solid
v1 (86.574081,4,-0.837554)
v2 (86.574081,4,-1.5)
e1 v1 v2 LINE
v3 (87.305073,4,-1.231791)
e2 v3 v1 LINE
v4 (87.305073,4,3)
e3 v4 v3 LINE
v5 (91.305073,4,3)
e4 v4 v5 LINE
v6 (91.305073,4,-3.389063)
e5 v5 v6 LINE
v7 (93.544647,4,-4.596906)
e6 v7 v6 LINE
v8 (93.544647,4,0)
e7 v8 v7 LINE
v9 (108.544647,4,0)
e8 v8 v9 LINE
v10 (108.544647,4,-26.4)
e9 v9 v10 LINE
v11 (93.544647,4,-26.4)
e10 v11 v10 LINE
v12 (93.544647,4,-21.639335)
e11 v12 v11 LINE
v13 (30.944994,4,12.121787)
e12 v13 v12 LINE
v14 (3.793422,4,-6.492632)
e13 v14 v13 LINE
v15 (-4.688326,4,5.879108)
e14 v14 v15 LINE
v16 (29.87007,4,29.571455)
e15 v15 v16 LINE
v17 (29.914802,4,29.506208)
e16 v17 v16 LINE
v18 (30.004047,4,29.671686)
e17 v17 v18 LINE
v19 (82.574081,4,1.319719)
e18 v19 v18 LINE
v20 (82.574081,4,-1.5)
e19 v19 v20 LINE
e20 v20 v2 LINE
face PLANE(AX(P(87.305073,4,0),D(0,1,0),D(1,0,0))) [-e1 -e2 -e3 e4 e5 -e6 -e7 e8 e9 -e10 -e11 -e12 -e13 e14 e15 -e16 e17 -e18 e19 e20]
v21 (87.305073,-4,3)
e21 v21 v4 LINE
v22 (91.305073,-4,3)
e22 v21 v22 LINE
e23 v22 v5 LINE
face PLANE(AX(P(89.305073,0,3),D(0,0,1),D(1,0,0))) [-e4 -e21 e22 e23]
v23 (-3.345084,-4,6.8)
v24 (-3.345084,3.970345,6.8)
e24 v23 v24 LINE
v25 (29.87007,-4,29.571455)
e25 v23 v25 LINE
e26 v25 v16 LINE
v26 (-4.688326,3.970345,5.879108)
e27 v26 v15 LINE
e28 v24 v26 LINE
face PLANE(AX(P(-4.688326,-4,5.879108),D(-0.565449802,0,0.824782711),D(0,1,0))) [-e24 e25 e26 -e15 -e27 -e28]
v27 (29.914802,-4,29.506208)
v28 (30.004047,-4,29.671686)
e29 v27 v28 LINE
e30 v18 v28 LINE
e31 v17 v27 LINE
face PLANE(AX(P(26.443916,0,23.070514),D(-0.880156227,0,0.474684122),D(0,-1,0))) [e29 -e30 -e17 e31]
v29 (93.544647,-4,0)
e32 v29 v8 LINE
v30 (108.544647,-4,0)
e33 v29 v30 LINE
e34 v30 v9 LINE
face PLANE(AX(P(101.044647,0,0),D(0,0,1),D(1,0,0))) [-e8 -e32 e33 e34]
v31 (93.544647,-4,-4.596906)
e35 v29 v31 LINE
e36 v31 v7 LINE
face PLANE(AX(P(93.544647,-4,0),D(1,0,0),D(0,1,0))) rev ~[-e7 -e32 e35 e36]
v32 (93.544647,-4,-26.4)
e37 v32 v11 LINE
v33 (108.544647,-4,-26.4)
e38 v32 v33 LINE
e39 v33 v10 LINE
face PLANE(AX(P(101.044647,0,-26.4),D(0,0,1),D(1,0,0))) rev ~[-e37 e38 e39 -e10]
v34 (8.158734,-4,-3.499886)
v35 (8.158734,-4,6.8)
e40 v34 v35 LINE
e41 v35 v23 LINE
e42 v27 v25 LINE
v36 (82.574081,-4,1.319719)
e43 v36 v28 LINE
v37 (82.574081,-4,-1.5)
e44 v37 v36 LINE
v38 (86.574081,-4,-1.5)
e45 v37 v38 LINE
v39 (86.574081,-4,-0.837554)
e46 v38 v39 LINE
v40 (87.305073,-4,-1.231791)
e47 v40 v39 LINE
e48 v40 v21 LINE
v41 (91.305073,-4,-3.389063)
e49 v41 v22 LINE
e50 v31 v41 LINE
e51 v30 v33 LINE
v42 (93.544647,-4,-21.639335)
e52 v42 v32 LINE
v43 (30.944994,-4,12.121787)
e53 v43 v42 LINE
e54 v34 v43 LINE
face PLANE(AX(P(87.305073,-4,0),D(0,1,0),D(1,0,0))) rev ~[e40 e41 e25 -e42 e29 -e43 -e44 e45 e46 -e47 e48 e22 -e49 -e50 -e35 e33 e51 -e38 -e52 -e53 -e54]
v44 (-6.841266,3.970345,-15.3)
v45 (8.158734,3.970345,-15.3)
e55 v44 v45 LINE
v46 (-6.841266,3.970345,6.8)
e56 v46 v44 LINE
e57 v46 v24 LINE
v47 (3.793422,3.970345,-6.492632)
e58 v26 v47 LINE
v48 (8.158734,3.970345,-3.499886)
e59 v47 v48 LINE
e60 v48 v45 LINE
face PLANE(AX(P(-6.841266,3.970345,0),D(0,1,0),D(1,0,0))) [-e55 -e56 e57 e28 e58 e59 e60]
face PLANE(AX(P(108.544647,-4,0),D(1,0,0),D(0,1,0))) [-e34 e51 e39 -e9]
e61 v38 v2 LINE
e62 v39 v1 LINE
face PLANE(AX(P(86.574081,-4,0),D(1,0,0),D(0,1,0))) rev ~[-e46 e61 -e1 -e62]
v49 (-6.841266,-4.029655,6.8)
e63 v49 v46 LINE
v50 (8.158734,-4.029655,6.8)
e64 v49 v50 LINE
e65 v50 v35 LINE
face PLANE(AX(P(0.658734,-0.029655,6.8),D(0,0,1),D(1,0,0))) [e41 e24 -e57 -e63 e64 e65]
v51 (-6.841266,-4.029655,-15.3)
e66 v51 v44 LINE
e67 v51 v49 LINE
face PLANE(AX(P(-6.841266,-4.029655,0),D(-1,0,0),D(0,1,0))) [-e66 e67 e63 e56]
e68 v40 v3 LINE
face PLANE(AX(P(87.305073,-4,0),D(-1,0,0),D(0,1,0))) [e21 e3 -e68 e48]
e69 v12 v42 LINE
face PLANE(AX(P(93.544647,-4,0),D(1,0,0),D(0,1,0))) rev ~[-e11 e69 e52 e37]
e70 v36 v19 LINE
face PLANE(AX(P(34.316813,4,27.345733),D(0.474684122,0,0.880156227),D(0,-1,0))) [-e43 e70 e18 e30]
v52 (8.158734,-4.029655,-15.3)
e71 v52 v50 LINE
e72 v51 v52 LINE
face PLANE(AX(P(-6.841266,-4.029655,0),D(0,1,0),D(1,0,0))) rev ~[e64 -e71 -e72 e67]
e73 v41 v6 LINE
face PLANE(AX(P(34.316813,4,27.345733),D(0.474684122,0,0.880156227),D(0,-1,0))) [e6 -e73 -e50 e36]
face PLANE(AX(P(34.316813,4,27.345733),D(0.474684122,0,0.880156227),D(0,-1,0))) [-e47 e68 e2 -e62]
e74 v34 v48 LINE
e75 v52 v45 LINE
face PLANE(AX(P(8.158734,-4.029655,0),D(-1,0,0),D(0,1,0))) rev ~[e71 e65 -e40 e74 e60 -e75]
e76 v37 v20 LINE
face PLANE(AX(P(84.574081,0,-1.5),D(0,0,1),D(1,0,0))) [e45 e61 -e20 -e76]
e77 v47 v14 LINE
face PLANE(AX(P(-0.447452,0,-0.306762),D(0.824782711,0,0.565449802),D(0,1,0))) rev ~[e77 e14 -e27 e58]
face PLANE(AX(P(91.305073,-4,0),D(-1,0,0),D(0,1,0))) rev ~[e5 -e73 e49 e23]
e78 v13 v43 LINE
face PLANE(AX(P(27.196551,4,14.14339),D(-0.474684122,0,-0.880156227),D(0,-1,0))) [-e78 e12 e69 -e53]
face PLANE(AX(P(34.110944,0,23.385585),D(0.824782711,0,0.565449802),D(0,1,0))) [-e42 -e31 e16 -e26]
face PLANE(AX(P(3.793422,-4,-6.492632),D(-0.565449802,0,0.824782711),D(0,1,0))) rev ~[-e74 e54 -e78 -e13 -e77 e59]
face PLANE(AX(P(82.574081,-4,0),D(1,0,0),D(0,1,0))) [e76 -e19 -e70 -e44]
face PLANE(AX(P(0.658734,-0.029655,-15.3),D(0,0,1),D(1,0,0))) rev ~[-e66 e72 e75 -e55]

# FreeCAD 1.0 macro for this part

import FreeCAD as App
import Part
import Sketcher
Q = App.Units.Quantity


def add_polygon(sketch, points):
    """Adds a closed chain of lines whose ends are joined by coincident constraints."""
    first, n = sketch.GeometryCount, len(points)
    for a, b in zip(points, points[1:] + points[:1]):
        sketch.addGeometry(Part.LineSegment(App.Vector(*a, 0), App.Vector(*b, 0)), False)
    for i in range(n):
        sketch.addConstraint(Sketcher.Constraint("Coincident", first + i, 2, first + (i + 1) % n, 1))

doc = App.newDocument("Part")
body = doc.addObject("PartDesign::Body", "Body")

# Sketch on an angled plane
sketch1 = body.newObject("Sketcher::SketchObject", "Sketch")
sketch1.Placement = App.Placement(App.Vector(-0.447452, 0, -0.306762), App.Rotation(App.Vector(0, 1, 0), App.Vector(-0.565449802, 0, 0.824782711), App.Vector(0.824782711, 0, 0.565449802), "ZXY"))
add_polygon(sketch1, [(-4, 7), (-4, -7), (4, -7), (4, 7)])  # lines 0-3
sketch1.addConstraint([
    Sketcher.Constraint("Vertical", 0),
    Sketcher.Constraint("Horizontal", 1),
    Sketcher.Constraint("Vertical", 2),
    Sketcher.Constraint("Horizontal", 3),
    Sketcher.Constraint("Symmetric", 0, 2, 2, 2, -1, 1),
    Sketcher.Constraint("DistanceX", 1, 1, 1, 2, Q("8 mm")),
    Sketcher.Constraint("DistanceY", 0, 2, 0, 1, Q("15 mm")),
])
pad1 = body.newObject("PartDesign::Pad", "Pad")
pad1.Profile = sketch1
pad1.Length = 41.9

# Sketch on an angled plane
sketch2 = body.newObject("Sketcher::SketchObject", "Sketch001")
sketch2.Placement = App.Placement(App.Vector(15.159437, 0, -8.175749), App.Rotation(App.Vector(0, -1, 0), App.Vector(0.474684122, 0, 0.880156227), App.Vector(-0.880156227, 0, 0.474684122), "ZXY"))
add_polygon(sketch2, [(-4, 40), (-4, 25), (4, 25), (4, 40)])  # lines 0-3
sketch2.addConstraint([
    Sketcher.Constraint("Vertical", 0),
    Sketcher.Constraint("Horizontal", 1),
    Sketcher.Constraint("Vertical", 2),
    Sketcher.Constraint("Horizontal", 3),
    Sketcher.Constraint("DistanceX", 1, 1, 1, 2, Q("8 mm")),
    Sketcher.Constraint("DistanceY", 0, 2, 0, 1, Q("15 mm")),
    Sketcher.Constraint("DistanceX", 0, 2, -1, 1, Q("4 mm")),
    Sketcher.Constraint("DistanceY", -1, 1, 0, 2, Q("25.358156 mm")),
])
pad2 = body.newObject("PartDesign::Pad", "Pad001")
pad2.Profile = sketch2
pad2.Length = 84.2
pad2.Reversed = True

# Sketch on an angled plane
sketch3 = body.newObject("Sketcher::SketchObject", "Sketch002")
sketch3.Placement = App.Placement(App.Vector(15.159437, 0, -8.175749), App.Rotation(App.Vector(0, -1, 0), App.Vector(0.474684122, 0, 0.880156227), App.Vector(-0.880156227, 0, 0.474684122), "ZXY"))
add_polygon(sketch3, [(-4, 40), (-4, 25), (4, 25), (4, 40)])  # lines 0-3
sketch3.addConstraint([
    Sketcher.Constraint("Vertical", 0),
    Sketcher.Constraint("Horizontal", 1),
    Sketcher.Constraint("Vertical", 2),
    Sketcher.Constraint("Horizontal", 3),
    Sketcher.Constraint("DistanceX", 1, 1, 1, 2, Q("8 mm")),
    Sketcher.Constraint("DistanceY", 0, 2, 0, 1, Q("15 mm")),
    Sketcher.Constraint("DistanceX", 0, 2, -1, 1, Q("4 mm")),
    Sketcher.Constraint("DistanceY", -1, 1, 0, 2, Q("25.358156 mm")),
])
pad3 = body.newObject("PartDesign::Pad", "Pad002")
pad3.Profile = sketch3
pad3.Length = 4.9

# Sketch on XY plane
sketch4 = body.newObject("Sketcher::SketchObject", "Sketch003")
sketch4.AttachmentSupport = (doc.getObject("XY_Plane"), [""])
sketch4.MapMode = "FlatFace"
add_polygon(sketch4, [(-7, 4), (-7, -4), (8, -4), (8, 4)])  # lines 0-3
sketch4.addConstraint([
    Sketcher.Constraint("Vertical", 0),
    Sketcher.Constraint("Horizontal", 1),
    Sketcher.Constraint("Vertical", 2),
    Sketcher.Constraint("Horizontal", 3),
    Sketcher.Constraint("DistanceX", 1, 1, 1, 2, Q("15 mm")),
    Sketcher.Constraint("DistanceY", 0, 2, 0, 1, Q("8 mm")),
    Sketcher.Constraint("DistanceX", 0, 2, -1, 1, Q("6.841266 mm")),
    Sketcher.Constraint("DistanceY", 0, 2, -1, 1, Q("4.029655 mm")),
])
pad4 = body.newObject("PartDesign::Pad", "Pad003")
pad4.Profile = sketch4
pad4.Length = 15.3
pad4.Reversed = True

# Sketch on XY plane
sketch5 = body.newObject("Sketcher::SketchObject", "Sketch004")
sketch5.AttachmentSupport = (doc.getObject("XY_Plane"), [""])
sketch5.MapMode = "FlatFace"
add_polygon(sketch5, [(-7, 4), (-7, -4), (8, -4), (8, 4)])  # lines 0-3
sketch5.addConstraint([
    Sketcher.Constraint("Vertical", 0),
    Sketcher.Constraint("Horizontal", 1),
    Sketcher.Constraint("Vertical", 2),
    Sketcher.Constraint("Horizontal", 3),
    Sketcher.Constraint("DistanceX", 1, 1, 1, 2, Q("15 mm")),
    Sketcher.Constraint("DistanceY", 0, 2, 0, 1, Q("8 mm")),
    Sketcher.Constraint("DistanceX", 0, 2, -1, 1, Q("6.841266 mm")),
    Sketcher.Constraint("DistanceY", 0, 2, -1, 1, Q("4.029655 mm")),
])
pad5 = body.newObject("PartDesign::Pad", "Pad004")
pad5.Profile = sketch5
pad5.Length = 6.8

# Sketch on XY plane
sketch6 = body.newObject("Sketcher::SketchObject", "Sketch005")
sketch6.AttachmentSupport = (doc.getObject("XY_Plane"), [""])
sketch6.MapMode = "FlatFace"
add_polygon(sketch6, [(94, 4), (94, -4), (109, -4), (109, 4)])  # lines 0-3
sketch6.addConstraint([
    Sketcher.Constraint("Vertical", 0),
    Sketcher.Constraint("Horizontal", 1),
    Sketcher.Constraint("Vertical", 2),
    Sketcher.Constraint("Horizontal", 3),
    Sketcher.Constraint("DistanceX", 1, 1, 1, 2, Q("15 mm")),
    Sketcher.Constraint("DistanceY", 0, 2, 0, 1, Q("8 mm")),
    Sketcher.Constraint("DistanceY", 0, 2, -1, 1, Q("4 mm")),
    Sketcher.Constraint("DistanceX", -1, 1, 0, 2, Q("93.544647 mm")),
])
pad6 = body.newObject("PartDesign::Pad", "Pad005")
pad6.Profile = sketch6
pad6.Length = 26.4
pad6.Reversed = True

# Sketch on XY plane
sketch7 = body.newObject("Sketcher::SketchObject", "Sketch006")
sketch7.AttachmentSupport = (doc.getObject("XY_Plane"), [""])
sketch7.MapMode = "FlatFace"
add_polygon(sketch7, [(82.6, 4), (82.6, -4), (86.6, -4), (86.6, 4)])  # lines 0-3
sketch7.addConstraint([
    Sketcher.Constraint("Vertical", 0),
    Sketcher.Constraint("Horizontal", 1),
    Sketcher.Constraint("Vertical", 2),
    Sketcher.Constraint("Horizontal", 3),
    Sketcher.Constraint("DistanceX", 1, 1, 1, 2, Q("4 mm")),
    Sketcher.Constraint("DistanceY", 0, 2, 0, 1, Q("8 mm")),
    Sketcher.Constraint("DistanceY", 0, 2, -1, 1, Q("4 mm")),
    Sketcher.Constraint("DistanceX", -1, 1, 0, 2, Q("82.574081 mm")),
])
pocket1 = body.newObject("PartDesign::Pocket", "Pocket")
pocket1.Profile = sketch7
pocket1.Length = 3
pocket1.Midplane = True

# Sketch on XY plane
sketch8 = body.newObject("Sketcher::SketchObject", "Sketch007")
sketch8.AttachmentSupport = (doc.getObject("XY_Plane"), [""])
sketch8.MapMode = "FlatFace"
add_polygon(sketch8, [(87.3, 4), (87.3, -4), (91.3, -4), (91.3, 4)])  # lines 0-3
sketch8.addConstraint([
    Sketcher.Constraint("Vertical", 0),
    Sketcher.Constraint("Horizontal", 1),
    Sketcher.Constraint("Vertical", 2),
    Sketcher.Constraint("Horizontal", 3),
    Sketcher.Constraint("DistanceX", 1, 1, 1, 2, Q("4 mm")),
    Sketcher.Constraint("DistanceY", 0, 2, 0, 1, Q("8 mm")),
    Sketcher.Constraint("DistanceY", 0, 2, -1, 1, Q("4 mm")),
    Sketcher.Constraint("DistanceX", -1, 1, 0, 2, Q("87.305073 mm")),
])
pad7 = body.newObject("PartDesign::Pad", "Pad006")
pad7.Profile = sketch8
pad7.Length = 5
pad7.Reversed = True

# Sketch on XY plane
sketch9 = body.newObject("Sketcher::SketchObject", "Sketch008")
sketch9.AttachmentSupport = (doc.getObject("XY_Plane"), [""])
sketch9.MapMode = "FlatFace"
add_polygon(sketch9, [(87.3, 4), (87.3, -4), (91.3, -4), (91.3, 4)])  # lines 0-3
sketch9.addConstraint([
    Sketcher.Constraint("Vertical", 0),
    Sketcher.Constraint("Horizontal", 1),
    Sketcher.Constraint("Vertical", 2),
    Sketcher.Constraint("Horizontal", 3),
    Sketcher.Constraint("DistanceX", 1, 1, 1, 2, Q("4 mm")),
    Sketcher.Constraint("DistanceY", 0, 2, 0, 1, Q("8 mm")),
    Sketcher.Constraint("DistanceY", 0, 2, -1, 1, Q("4 mm")),
    Sketcher.Constraint("DistanceX", -1, 1, 0, 2, Q("87.305073 mm")),
])
pad8 = body.newObject("PartDesign::Pad", "Pad007")
pad8.Profile = sketch9
pad8.Length = 3

doc.recompute()
